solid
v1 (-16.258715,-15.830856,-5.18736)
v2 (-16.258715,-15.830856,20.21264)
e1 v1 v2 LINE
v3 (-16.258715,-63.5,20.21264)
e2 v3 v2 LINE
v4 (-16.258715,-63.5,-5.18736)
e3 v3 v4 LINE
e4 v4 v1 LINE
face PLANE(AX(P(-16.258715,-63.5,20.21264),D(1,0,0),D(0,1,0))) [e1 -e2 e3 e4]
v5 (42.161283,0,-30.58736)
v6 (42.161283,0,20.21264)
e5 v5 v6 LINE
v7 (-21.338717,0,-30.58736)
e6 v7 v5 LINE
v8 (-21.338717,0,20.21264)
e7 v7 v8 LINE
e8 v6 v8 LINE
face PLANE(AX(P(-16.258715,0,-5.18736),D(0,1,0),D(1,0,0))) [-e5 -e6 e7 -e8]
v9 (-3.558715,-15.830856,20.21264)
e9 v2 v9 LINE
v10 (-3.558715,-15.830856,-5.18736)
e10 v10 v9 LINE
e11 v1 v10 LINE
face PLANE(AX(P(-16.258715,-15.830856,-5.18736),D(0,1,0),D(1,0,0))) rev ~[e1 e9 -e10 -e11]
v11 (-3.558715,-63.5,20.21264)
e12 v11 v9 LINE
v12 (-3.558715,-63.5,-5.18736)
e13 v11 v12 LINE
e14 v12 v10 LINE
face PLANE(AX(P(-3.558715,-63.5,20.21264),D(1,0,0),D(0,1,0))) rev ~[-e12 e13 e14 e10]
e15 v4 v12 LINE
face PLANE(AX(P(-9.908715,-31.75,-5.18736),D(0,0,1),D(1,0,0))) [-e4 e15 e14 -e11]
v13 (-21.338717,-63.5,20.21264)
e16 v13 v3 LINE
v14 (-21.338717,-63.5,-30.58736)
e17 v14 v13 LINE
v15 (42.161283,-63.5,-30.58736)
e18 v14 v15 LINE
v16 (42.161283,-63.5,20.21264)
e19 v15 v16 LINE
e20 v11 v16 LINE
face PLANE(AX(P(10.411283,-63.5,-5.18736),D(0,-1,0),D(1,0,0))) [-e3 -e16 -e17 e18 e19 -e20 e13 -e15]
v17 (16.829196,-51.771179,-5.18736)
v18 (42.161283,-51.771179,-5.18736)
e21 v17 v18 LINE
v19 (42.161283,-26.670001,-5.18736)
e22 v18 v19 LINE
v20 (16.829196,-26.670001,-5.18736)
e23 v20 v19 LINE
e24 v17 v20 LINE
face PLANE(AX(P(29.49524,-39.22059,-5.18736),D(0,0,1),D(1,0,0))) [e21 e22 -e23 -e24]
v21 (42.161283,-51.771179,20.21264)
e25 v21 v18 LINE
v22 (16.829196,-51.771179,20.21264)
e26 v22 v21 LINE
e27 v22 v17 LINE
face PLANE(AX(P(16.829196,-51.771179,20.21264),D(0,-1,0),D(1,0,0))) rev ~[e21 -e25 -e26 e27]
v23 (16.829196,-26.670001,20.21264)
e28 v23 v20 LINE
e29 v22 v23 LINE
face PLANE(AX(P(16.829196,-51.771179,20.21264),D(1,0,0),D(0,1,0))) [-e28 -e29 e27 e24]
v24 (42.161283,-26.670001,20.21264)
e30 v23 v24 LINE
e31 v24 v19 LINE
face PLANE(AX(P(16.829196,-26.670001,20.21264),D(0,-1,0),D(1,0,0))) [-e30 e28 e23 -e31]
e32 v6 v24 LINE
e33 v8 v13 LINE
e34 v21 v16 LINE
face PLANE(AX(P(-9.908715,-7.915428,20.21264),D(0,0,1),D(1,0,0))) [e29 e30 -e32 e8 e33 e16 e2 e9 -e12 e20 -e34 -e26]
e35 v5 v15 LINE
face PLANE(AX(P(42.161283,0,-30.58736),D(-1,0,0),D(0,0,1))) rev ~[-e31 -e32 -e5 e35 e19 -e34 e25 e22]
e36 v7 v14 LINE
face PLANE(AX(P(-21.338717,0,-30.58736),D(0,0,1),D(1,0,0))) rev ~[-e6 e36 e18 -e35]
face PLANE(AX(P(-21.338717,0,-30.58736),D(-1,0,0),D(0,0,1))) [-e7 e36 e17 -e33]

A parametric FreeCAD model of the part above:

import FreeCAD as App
import Part
import Sketcher
from FreeCAD import Vector
Q = App.Units.Quantity

doc = App.newDocument("Part")
body = doc.addObject("PartDesign::Body", "Body")

sketch1 = body.newObject("Sketcher::SketchObject", "Sketch")
sketch1.AttachmentSupport = (doc.getObject("XZ_Plane"), [""])
sketch1.MapMode = "FlatFace"
sketch1.addGeometry(Part.LineSegment(Vector(-21, 20, 0), Vector(-21, -31, 0)), False)
sketch1.addGeometry(Part.LineSegment(Vector(-21, -31, 0), Vector(42, -31, 0)), False)
sketch1.addGeometry(Part.LineSegment(Vector(42, -31, 0), Vector(42, 20, 0)), False)
sketch1.addGeometry(Part.LineSegment(Vector(42, 20, 0), Vector(-21, 20, 0)), False)
sketch1.addConstraint(Sketcher.Constraint("Coincident", 0, 2, 1, 1))
sketch1.addConstraint(Sketcher.Constraint("Coincident", 1, 2, 2, 1))
sketch1.addConstraint(Sketcher.Constraint("Coincident", 2, 2, 3, 1))
sketch1.addConstraint(Sketcher.Constraint("Coincident", 3, 2, 0, 1))
sketch1.addConstraint(Sketcher.Constraint("Vertical", 0))
sketch1.addConstraint(Sketcher.Constraint("Horizontal", 1))
sketch1.addConstraint(Sketcher.Constraint("Vertical", 2))
sketch1.addConstraint(Sketcher.Constraint("Horizontal", 3))
sketch1.addConstraint(Sketcher.Constraint("DistanceY", 0, 2, 0, 1, Q("2 in")))
sketch1.addConstraint(Sketcher.Constraint("DistanceX", 1, 1, 1, 2, Q("2.5 in")))
sketch1.addConstraint(Sketcher.Constraint("DistanceY", 0, 2, -1, 1, Q("30.58736 mm")))
sketch1.addConstraint(Sketcher.Constraint("DistanceX", 0, 2, -1, 1, Q("21.338717 mm")))
pad1 = body.newObject("PartDesign::Pad", "Pad")
pad1.Profile = sketch1
pad1.Length = Q("2.5 in")

sketch2 = body.newObject("Sketcher::SketchObject", "Sketch001")
sketch2.AttachmentSupport = (doc.getObject("XY_Plane"), [""])
sketch2.MapMode = "FlatFace"
sketch2.AttachmentOffset = App.Placement(Vector(0, 0, 20.21264), App.Rotation())
sketch2.addGeometry(Part.LineSegment(Vector(17, -27, 0), Vector(17, -52, 0)), False)
sketch2.addGeometry(Part.LineSegment(Vector(17, -52, 0), Vector(42, -52, 0)), False)
sketch2.addGeometry(Part.LineSegment(Vector(42, -52, 0), Vector(42, -27, 0)), False)
sketch2.addGeometry(Part.LineSegment(Vector(42, -27, 0), Vector(17, -27, 0)), False)
sketch2.addGeometry(Part.LineSegment(Vector(-16, 0, 0), Vector(-16, -64, 0)), False)
sketch2.addGeometry(Part.LineSegment(Vector(-16, -64, 0), Vector(-4, -64, 0)), False)
sketch2.addGeometry(Part.LineSegment(Vector(-4, -64, 0), Vector(-4, 0, 0)), False)
sketch2.addGeometry(Part.LineSegment(Vector(-4, 0, 0), Vector(-16, 0, 0)), False)
sketch2.addConstraint(Sketcher.Constraint("Coincident", 0, 2, 1, 1))
sketch2.addConstraint(Sketcher.Constraint("Coincident", 1, 2, 2, 1))
sketch2.addConstraint(Sketcher.Constraint("Coincident", 2, 2, 3, 1))
sketch2.addConstraint(Sketcher.Constraint("Coincident", 3, 2, 0, 1))
sketch2.addConstraint(Sketcher.Constraint("Coincident", 4, 2, 5, 1))
sketch2.addConstraint(Sketcher.Constraint("Coincident", 5, 2, 6, 1))
sketch2.addConstraint(Sketcher.Constraint("Coincident", 6, 2, 7, 1))
sketch2.addConstraint(Sketcher.Constraint("Coincident", 7, 2, 4, 1))
sketch2.addConstraint(Sketcher.Constraint("Vertical", 0))
sketch2.addConstraint(Sketcher.Constraint("Horizontal", 1))
sketch2.addConstraint(Sketcher.Constraint("Vertical", 2))
sketch2.addConstraint(Sketcher.Constraint("Horizontal", 3))
sketch2.addConstraint(Sketcher.Constraint("Vertical", 4))
sketch2.addConstraint(Sketcher.Constraint("Horizontal", 5))
sketch2.addConstraint(Sketcher.Constraint("Vertical", 6))
sketch2.addConstraint(Sketcher.Constraint("Horizontal", 7))
sketch2.addConstraint(Sketcher.Constraint("PointOnObject", 6, 2, -1))
sketch2.addConstraint(Sketcher.Constraint("DistanceX", 5, 1, 5, 2, Q("0.5 in")))
sketch2.addConstraint(Sketcher.Constraint("DistanceY", 4, 2, 4, 1, Q("2.5 in")))
sketch2.addConstraint(Sketcher.Constraint("DistanceX", 4, 2, 1, 2, Q("2.2999999 in")))
sketch2.addConstraint(Sketcher.Constraint("DistanceY", 2, 2, -1, 1, Q("1.0500001 in")))
sketch2.addConstraint(Sketcher.Constraint("DistanceX", 1, 1, 1, 2, Q("25.332087 mm")))
sketch2.addConstraint(Sketcher.Constraint("DistanceY", 0, 2, 0, 1, Q("25.101177 mm")))
sketch2.addConstraint(Sketcher.Constraint("DistanceX", -1, 1, 0, 2, Q("16.829196 mm")))
pocket1 = body.newObject("PartDesign::Pocket", "Pocket")
pocket1.Profile = sketch2
pocket1.Length = Q("1 in")

sketch3 = body.newObject("Sketcher::SketchObject", "Sketch002")
sketch3.AttachmentSupport = (doc.getObject("XY_Plane"), [""])
sketch3.MapMode = "FlatFace"
sketch3.AttachmentOffset = App.Placement(Vector(0, 0, -5.18736), App.Rotation())
sketch3.addGeometry(Part.LineSegment(Vector(-16, 0, 0), Vector(-16, -16, 0)), False)
sketch3.addGeometry(Part.LineSegment(Vector(-16, -16, 0), Vector(-4, -16, 0)), False)
sketch3.addGeometry(Part.LineSegment(Vector(-4, -16, 0), Vector(-4, 0, 0)), False)
sketch3.addGeometry(Part.LineSegment(Vector(-4, 0, 0), Vector(-16, 0, 0)), False)
sketch3.addConstraint(Sketcher.Constraint("Coincident", 0, 2, 1, 1))
sketch3.addConstraint(Sketcher.Constraint("Coincident", 1, 2, 2, 1))
sketch3.addConstraint(Sketcher.Constraint("Coincident", 2, 2, 3, 1))
sketch3.addConstraint(Sketcher.Constraint("Coincident", 3, 2, 0, 1))
sketch3.addConstraint(Sketcher.Constraint("Vertical", 0))
sketch3.addConstraint(Sketcher.Constraint("Horizontal", 1))
sketch3.addConstraint(Sketcher.Constraint("Vertical", 2))
sketch3.addConstraint(Sketcher.Constraint("Horizontal", 3))
sketch3.addConstraint(Sketcher.Constraint("PointOnObject", 2, 2, -1))
sketch3.addConstraint(Sketcher.Constraint("DistanceX", 1, 1, 1, 2, Q("0.5 in")))
sketch3.addConstraint(Sketcher.Constraint("DistanceY", 0, 2, 0, 1, Q("15.830856 mm")))
sketch3.addConstraint(Sketcher.Constraint("DistanceX", 0, 2, -1, 1, Q("16.258715 mm")))
pad2 = body.newObject("PartDesign::Pad", "Pad001")
pad2.Profile = sketch3
pad2.Length = Q("1 in")

doc.recompute()
